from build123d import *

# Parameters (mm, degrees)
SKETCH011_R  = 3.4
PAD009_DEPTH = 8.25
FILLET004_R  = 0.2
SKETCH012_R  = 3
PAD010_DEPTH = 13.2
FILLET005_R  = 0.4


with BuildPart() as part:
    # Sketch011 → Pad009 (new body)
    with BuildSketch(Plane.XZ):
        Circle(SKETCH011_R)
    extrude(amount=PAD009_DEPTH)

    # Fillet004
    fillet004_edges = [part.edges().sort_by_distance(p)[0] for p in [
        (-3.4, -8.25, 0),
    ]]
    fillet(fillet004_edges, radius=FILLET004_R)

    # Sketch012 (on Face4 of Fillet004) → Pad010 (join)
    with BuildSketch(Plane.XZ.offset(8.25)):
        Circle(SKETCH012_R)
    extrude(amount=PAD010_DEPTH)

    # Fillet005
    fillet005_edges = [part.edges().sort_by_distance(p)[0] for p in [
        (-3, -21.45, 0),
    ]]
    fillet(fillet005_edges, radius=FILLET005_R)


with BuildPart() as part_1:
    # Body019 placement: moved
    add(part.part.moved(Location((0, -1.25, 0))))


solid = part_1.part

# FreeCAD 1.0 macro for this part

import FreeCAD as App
import Part
import Sketcher
Q = App.Units.Quantity


def edges_at(feature, points):
    """Names of the edges that pass closest to the given points."""
    edges = feature.Shape.Edges
    near = lambda p: min(range(len(edges)), key=lambda i: edges[i].distToShape(Part.Vertex(*p))[0])
    return sorted({f"Edge{near(p) + 1}" for p in points})

doc = App.newDocument("Part")
body = doc.addObject("PartDesign::Body", "Body")

# Sketch on XZ plane
sketch1 = doc.addObject("Sketcher::SketchObject", "Sketch")
body.addObject(sketch1)
sketch1.AttachmentSupport = (doc.XZ_Plane, [""])
sketch1.MapMode = "FlatFace"
sketch1.addGeometry(Part.Circle(App.Vector(0, 0, 0), App.Vector(0, 0, 1), 3.4), False)
sketch1.addConstraint(Sketcher.Constraint("Coincident", 0, 3, -1, 1))
sketch1.addConstraint(Sketcher.Constraint("Diameter", 0, Q("6.8 mm")))
pad1 = doc.addObject("PartDesign::Pad", "Pad")
body.addObject(pad1)
pad1.Profile = sketch1
pad1.Length = 8.25
doc.recompute()

fillet = doc.addObject("PartDesign::Fillet", "Fillet")
body.addObject(fillet)
fillet.Base = (pad1, edges_at(pad1, [(-3.4, -8.25, 0)]))
fillet.Radius = 0.2

# Sketch on XZ plane
sketch2 = doc.addObject("Sketcher::SketchObject", "Sketch001")
body.addObject(sketch2)
sketch2.AttachmentSupport = (doc.XZ_Plane, [""])
sketch2.MapMode = "FlatFace"
sketch2.AttachmentOffset = App.Placement(App.Vector(0, 0, 8.25), App.Rotation())
sketch2.addGeometry(Part.Circle(App.Vector(0, 0, 0), App.Vector(0, 0, 1), 3), False)
sketch2.addConstraint(Sketcher.Constraint("Coincident", 0, 3, -1, 1))
sketch2.addConstraint(Sketcher.Constraint("Diameter", 0, Q("6 mm")))
pad2 = doc.addObject("PartDesign::Pad", "Pad001")
body.addObject(pad2)
pad2.Profile = sketch2
pad2.Length = 13.2
doc.recompute()

fillet2 = doc.addObject("PartDesign::Fillet", "Fillet001")
body.addObject(fillet2)
fillet2.Base = (pad2, edges_at(pad2, [(-3, -21.45, 0)]))
fillet2.Radius = 0.4
body2 = doc.addObject("PartDesign::Body", "Body001")
doc.recompute()

body.Placement = App.Placement(App.Vector(0, -1.25, 0), App.Rotation(App.Vector(0, 0, 1), 0))
boolean = doc.addObject("PartDesign::Boolean", "Boolean")
body2.addObject(boolean)
boolean.Type = "Fuse"
boolean.addObjects([body])

doc.recompute()
